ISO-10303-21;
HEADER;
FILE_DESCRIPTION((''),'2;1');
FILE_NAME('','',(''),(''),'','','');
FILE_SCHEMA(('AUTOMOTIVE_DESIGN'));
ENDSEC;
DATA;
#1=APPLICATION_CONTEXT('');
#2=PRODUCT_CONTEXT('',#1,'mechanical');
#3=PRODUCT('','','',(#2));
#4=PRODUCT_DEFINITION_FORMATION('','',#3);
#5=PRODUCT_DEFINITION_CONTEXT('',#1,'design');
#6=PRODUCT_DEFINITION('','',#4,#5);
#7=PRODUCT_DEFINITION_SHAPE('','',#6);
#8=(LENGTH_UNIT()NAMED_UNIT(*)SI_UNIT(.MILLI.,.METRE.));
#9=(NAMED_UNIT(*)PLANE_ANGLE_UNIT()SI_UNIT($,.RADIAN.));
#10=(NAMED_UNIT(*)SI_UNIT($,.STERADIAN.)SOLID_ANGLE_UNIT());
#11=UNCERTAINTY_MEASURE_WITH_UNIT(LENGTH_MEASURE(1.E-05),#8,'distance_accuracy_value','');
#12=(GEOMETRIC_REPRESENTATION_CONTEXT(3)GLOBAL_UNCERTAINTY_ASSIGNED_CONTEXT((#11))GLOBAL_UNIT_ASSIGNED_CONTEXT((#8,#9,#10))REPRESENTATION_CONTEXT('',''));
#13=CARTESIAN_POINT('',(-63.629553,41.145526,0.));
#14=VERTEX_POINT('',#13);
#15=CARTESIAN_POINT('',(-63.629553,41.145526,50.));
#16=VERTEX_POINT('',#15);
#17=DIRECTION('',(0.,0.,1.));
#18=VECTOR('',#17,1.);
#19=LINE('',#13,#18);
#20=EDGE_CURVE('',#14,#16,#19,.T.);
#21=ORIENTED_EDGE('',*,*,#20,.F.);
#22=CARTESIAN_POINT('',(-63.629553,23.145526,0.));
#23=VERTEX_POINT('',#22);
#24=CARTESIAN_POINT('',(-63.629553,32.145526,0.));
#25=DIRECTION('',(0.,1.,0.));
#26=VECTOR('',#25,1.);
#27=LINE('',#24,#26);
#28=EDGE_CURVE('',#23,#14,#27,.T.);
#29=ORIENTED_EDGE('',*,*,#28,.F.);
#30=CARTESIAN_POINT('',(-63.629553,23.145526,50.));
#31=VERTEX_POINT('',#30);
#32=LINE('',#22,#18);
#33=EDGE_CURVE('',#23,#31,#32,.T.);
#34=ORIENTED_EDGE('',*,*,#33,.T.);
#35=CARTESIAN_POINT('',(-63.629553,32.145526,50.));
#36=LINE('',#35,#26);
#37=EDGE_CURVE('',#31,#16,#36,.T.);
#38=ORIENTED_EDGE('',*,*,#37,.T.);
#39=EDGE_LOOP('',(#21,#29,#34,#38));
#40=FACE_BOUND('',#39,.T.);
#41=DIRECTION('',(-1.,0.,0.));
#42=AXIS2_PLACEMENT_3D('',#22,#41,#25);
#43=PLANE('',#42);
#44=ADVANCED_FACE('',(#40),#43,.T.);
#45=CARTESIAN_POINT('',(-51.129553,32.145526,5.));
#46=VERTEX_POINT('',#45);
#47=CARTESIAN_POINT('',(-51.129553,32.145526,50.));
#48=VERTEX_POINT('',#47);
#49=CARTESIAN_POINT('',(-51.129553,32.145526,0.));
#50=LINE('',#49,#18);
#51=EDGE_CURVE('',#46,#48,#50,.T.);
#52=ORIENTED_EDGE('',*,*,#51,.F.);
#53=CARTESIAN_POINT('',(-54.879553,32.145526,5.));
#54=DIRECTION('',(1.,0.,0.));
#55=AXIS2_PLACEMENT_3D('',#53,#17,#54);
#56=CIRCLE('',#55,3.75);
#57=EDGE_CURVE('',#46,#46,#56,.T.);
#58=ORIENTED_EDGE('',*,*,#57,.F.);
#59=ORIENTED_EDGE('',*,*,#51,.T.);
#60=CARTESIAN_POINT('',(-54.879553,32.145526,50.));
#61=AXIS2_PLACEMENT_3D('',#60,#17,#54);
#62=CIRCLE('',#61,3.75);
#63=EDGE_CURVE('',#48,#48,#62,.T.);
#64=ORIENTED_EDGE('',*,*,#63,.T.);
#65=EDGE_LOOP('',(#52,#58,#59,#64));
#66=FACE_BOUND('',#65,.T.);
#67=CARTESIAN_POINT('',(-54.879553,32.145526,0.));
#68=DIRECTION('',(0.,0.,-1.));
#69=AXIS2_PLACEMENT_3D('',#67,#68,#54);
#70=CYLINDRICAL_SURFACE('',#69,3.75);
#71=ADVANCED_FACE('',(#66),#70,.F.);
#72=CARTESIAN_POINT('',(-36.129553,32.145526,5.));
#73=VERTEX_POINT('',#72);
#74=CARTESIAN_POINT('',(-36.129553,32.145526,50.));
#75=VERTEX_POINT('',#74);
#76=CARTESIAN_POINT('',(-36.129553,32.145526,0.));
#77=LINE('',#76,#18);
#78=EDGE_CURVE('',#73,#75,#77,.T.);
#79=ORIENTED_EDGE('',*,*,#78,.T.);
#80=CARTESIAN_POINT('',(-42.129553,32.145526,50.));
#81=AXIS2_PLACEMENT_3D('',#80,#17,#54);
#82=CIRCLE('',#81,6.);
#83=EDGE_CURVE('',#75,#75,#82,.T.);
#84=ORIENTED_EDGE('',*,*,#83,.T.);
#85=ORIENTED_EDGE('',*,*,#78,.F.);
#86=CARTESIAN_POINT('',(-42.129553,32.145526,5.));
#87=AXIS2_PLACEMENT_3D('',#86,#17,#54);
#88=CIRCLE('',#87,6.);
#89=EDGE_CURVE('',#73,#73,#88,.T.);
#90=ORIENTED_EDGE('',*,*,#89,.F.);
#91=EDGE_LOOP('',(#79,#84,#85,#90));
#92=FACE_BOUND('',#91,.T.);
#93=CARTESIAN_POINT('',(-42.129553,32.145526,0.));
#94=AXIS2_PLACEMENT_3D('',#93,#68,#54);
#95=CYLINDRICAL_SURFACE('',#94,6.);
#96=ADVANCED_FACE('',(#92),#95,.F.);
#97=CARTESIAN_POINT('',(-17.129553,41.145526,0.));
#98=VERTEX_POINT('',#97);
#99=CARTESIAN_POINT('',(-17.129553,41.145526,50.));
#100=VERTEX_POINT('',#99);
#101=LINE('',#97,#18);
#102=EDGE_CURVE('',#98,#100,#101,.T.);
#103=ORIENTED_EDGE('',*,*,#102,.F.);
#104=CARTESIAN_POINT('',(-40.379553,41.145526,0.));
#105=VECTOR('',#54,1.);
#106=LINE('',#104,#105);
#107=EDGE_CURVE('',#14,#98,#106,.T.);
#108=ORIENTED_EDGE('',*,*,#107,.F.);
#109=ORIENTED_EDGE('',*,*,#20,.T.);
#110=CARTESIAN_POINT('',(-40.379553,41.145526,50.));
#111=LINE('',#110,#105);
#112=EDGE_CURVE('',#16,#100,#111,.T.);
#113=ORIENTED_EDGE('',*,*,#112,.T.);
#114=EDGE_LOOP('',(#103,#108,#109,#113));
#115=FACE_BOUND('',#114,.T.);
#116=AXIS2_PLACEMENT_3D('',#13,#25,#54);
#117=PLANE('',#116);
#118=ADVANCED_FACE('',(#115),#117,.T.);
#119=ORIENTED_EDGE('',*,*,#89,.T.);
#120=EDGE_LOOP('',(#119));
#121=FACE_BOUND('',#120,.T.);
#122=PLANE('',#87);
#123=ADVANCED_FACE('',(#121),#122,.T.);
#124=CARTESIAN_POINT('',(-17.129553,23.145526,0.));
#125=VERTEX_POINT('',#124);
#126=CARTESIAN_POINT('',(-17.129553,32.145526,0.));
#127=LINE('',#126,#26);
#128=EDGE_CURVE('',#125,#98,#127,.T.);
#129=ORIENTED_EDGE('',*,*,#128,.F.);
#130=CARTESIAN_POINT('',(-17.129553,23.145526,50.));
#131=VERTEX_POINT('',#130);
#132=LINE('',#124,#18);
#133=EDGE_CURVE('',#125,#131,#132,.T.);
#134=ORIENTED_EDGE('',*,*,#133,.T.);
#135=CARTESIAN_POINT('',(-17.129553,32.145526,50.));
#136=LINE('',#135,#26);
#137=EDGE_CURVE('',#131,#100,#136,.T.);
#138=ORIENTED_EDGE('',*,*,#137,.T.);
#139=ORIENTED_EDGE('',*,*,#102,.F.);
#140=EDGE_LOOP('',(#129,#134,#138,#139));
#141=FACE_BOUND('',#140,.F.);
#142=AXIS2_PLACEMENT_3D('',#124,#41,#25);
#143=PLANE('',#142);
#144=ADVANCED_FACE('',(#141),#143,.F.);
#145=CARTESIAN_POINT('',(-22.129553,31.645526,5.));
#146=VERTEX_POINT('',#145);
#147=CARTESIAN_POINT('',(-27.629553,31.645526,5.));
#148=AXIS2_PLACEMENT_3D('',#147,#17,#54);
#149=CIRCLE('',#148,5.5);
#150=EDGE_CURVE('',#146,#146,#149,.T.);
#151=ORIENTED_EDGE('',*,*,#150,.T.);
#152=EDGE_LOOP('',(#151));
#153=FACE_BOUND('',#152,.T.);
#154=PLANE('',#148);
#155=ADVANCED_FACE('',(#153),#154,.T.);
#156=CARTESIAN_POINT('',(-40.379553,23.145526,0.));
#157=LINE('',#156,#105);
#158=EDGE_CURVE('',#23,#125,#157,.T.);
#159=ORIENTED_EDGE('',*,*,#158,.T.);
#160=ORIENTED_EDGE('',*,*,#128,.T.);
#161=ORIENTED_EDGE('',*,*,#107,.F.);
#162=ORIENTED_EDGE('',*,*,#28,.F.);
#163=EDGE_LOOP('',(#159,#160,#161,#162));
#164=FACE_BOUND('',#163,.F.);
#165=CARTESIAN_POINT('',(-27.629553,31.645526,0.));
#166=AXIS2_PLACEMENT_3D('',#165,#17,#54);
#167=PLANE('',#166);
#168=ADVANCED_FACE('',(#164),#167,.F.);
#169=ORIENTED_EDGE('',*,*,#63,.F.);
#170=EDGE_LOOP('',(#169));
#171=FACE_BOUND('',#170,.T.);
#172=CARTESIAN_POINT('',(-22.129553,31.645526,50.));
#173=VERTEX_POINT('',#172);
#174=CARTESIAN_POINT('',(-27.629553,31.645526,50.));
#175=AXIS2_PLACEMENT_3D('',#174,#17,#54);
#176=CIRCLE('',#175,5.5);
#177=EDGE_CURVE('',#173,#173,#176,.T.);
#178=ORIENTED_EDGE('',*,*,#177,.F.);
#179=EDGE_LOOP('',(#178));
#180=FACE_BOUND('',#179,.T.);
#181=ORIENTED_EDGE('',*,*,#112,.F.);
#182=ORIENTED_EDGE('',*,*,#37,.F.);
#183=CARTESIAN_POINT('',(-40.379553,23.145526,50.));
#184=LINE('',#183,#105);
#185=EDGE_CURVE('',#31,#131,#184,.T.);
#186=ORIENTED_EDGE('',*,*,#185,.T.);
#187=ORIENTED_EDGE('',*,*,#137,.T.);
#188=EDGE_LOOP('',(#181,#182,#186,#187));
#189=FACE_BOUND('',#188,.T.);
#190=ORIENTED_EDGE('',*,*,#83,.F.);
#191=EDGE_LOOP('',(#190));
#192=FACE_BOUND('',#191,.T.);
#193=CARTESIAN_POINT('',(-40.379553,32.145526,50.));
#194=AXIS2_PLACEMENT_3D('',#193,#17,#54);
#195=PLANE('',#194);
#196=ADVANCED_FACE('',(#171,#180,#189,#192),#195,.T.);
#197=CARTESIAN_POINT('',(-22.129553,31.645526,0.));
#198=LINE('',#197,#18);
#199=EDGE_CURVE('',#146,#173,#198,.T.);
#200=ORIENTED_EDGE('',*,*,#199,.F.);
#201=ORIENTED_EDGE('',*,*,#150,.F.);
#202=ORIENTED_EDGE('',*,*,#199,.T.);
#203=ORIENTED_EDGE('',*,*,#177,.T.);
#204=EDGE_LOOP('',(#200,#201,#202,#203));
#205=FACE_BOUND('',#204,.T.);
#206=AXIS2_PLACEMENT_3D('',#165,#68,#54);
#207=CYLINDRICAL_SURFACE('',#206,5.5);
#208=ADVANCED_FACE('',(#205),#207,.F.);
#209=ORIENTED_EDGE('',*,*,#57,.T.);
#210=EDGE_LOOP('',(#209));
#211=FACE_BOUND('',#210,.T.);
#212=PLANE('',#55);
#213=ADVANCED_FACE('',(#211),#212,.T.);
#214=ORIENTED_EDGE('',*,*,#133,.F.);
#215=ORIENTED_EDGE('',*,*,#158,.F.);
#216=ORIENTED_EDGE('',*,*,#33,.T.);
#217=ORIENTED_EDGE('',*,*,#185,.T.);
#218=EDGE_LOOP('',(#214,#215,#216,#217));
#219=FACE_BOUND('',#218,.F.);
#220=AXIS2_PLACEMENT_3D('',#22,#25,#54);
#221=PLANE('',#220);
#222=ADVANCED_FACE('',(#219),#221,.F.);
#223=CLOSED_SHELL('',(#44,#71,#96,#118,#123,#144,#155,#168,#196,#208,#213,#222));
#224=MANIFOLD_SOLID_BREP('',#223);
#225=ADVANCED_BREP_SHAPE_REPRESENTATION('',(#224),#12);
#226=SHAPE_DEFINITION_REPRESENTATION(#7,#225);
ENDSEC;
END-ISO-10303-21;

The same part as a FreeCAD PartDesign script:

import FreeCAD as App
import Part
import Sketcher
from FreeCAD import Vector


def add_polygon(sketch, points):
    """Adds a closed chain of lines whose ends are joined by coincident constraints."""
    first, n = sketch.GeometryCount, len(points)
    for a, b in zip(points, points[1:] + points[:1]):
        sketch.addGeometry(Part.LineSegment(App.Vector(*a, 0), App.Vector(*b, 0)), False)
    for i in range(n):
        sketch.addConstraint(Sketcher.Constraint("Coincident", first + i, 2, first + (i + 1) % n, 1))

doc = App.newDocument("Part")
params = doc.addObject("Spreadsheet::Sheet", "Params")
for row, (alias, value) in enumerate([
    ("sketch1_diameter", "11 mm"),
    ("sketch1_diameter2", "12 mm"),
    ("sketch1_diameter3", "7.5 mm"),
    ("sketch1_height", "18 mm"),
    ("sketch1_width", "46.5 mm"),
    ("pad1_length", "50 mm"),
    ("sketch2_diameter", "11 mm"),
    ("sketch2_diameter2", "12 mm"),
    ("sketch2_diameter3", "7.5 mm"),
    ("pad2_length", "5 mm"),
], start=1):
    params.set(f"A{row}", alias)
    params.set(f"B{row}", "=" + value)
    params.setAlias(f"B{row}", alias)

body = doc.addObject("PartDesign::Body", "Body")

# Sketch on XY plane
sketch1 = body.newObject("Sketcher::SketchObject", "Sketch")
sketch1.AttachmentSupport = (doc.getObject("XY_Plane"), [""])
sketch1.MapMode = "FlatFace"
add_polygon(sketch1, [(-63.6, 41.1), (-63.6, 23.1), (-17.1, 23.1), (-17.1, 41.1)])  # lines 0-3
sketch1.addGeometry(Part.Circle(Vector(-27.6, 31.6, 0), Vector(0, 0, 1), 5.5), False)  # 4
sketch1.addGeometry(Part.Circle(Vector(-54.9, 32.1, 0), Vector(0, 0, 1), 3.8), False)  # 5
sketch1.addGeometry(Part.Circle(Vector(-42.1, 32.1, 0), Vector(0, 0, 1), 6), False)  # 6
sketch1.addConstraint(Sketcher.Constraint("Vertical", 0))
sketch1.addConstraint(Sketcher.Constraint("Horizontal", 1))
sketch1.addConstraint(Sketcher.Constraint("Vertical", 2))
sketch1.addConstraint(Sketcher.Constraint("Horizontal", 3))
sketch1.addConstraint(Sketcher.Constraint("Horizontal", 5, 3, 6, 3))
sketch1.addConstraint(Sketcher.Constraint("Diameter", 4, 11.0))
sketch1.addConstraint(Sketcher.Constraint("Diameter", 6, 12.0))
sketch1.addConstraint(Sketcher.Constraint("Diameter", 5, 7.5))
sketch1.addConstraint(Sketcher.Constraint("DistanceY", 0, 2, 0, 1, 18.0))
sketch1.addConstraint(Sketcher.Constraint("DistanceX", 1, 1, 1, 2, 46.5))
sketch1.addConstraint(Sketcher.Constraint("DistanceY", 0, 2, 5, 3, 9.0))
sketch1.addConstraint(Sketcher.Constraint("DistanceX", 0, 2, 4, 3, 36.0))
sketch1.addConstraint(Sketcher.Constraint("DistanceX", 6, 3, 1, 2, 25.0))
sketch1.addConstraint(Sketcher.Constraint("DistanceY", 4, 3, 5, 3, 0.5))
sketch1.addConstraint(Sketcher.Constraint("DistanceX", 5, 3, 4, 3, 27.25))
sketch1.addConstraint(Sketcher.Constraint("DistanceX", 4, 3, -1, 1, 27.629553))
sketch1.addConstraint(Sketcher.Constraint("DistanceY", -1, 1, 4, 3, 31.645526))
sketch1.setExpression("Constraints[9]", "Params.sketch1_diameter")
sketch1.setExpression("Constraints[10]", "Params.sketch1_diameter2")
sketch1.setExpression("Constraints[11]", "Params.sketch1_diameter3")
sketch1.setExpression("Constraints[12]", "Params.sketch1_height")
sketch1.setExpression("Constraints[13]", "Params.sketch1_width")
pad1 = body.newObject("PartDesign::Pad", "Pad")
pad1.Profile = sketch1
pad1.setExpression("Length", "Params.pad1_length")

# Sketch on XY plane
sketch2 = body.newObject("Sketcher::SketchObject", "Sketch001")
sketch2.AttachmentSupport = (doc.getObject("XY_Plane"), [""])
sketch2.MapMode = "FlatFace"
sketch2.addGeometry(Part.Circle(Vector(-27.6, 31.6, 0), Vector(0, 0, 1), 5.5), False)
sketch2.addGeometry(Part.Circle(Vector(-42.1, 32.1, 0), Vector(0, 0, 1), 6), False)
sketch2.addGeometry(Part.Circle(Vector(-54.9, 32.1, 0), Vector(0, 0, 1), 3.8), False)
sketch2.addConstraint(Sketcher.Constraint("Horizontal", 1, 3, 2, 3))
sketch2.addConstraint(Sketcher.Constraint("Diameter", 0, 11.0))
sketch2.addConstraint(Sketcher.Constraint("Diameter", 1, 12.0))
sketch2.addConstraint(Sketcher.Constraint("Diameter", 2, 7.5))
sketch2.addConstraint(Sketcher.Constraint("DistanceX", 1, 3, 0, 3, 14.5))
sketch2.addConstraint(Sketcher.Constraint("DistanceY", 0, 3, 1, 3, 0.5))
sketch2.addConstraint(Sketcher.Constraint("DistanceX", 2, 3, 1, 3, 12.75))
sketch2.addConstraint(Sketcher.Constraint("DistanceX", 0, 3, -1, 1, 27.629553))
sketch2.addConstraint(Sketcher.Constraint("DistanceY", -1, 1, 0, 3, 31.645526))
sketch2.setExpression("Constraints[1]", "Params.sketch2_diameter")
sketch2.setExpression("Constraints[2]", "Params.sketch2_diameter2")
sketch2.setExpression("Constraints[3]", "Params.sketch2_diameter3")
pad2 = body.newObject("PartDesign::Pad", "Pad001")
pad2.Profile = sketch2
pad2.setExpression("Length", "Params.pad2_length")

doc.recompute()
